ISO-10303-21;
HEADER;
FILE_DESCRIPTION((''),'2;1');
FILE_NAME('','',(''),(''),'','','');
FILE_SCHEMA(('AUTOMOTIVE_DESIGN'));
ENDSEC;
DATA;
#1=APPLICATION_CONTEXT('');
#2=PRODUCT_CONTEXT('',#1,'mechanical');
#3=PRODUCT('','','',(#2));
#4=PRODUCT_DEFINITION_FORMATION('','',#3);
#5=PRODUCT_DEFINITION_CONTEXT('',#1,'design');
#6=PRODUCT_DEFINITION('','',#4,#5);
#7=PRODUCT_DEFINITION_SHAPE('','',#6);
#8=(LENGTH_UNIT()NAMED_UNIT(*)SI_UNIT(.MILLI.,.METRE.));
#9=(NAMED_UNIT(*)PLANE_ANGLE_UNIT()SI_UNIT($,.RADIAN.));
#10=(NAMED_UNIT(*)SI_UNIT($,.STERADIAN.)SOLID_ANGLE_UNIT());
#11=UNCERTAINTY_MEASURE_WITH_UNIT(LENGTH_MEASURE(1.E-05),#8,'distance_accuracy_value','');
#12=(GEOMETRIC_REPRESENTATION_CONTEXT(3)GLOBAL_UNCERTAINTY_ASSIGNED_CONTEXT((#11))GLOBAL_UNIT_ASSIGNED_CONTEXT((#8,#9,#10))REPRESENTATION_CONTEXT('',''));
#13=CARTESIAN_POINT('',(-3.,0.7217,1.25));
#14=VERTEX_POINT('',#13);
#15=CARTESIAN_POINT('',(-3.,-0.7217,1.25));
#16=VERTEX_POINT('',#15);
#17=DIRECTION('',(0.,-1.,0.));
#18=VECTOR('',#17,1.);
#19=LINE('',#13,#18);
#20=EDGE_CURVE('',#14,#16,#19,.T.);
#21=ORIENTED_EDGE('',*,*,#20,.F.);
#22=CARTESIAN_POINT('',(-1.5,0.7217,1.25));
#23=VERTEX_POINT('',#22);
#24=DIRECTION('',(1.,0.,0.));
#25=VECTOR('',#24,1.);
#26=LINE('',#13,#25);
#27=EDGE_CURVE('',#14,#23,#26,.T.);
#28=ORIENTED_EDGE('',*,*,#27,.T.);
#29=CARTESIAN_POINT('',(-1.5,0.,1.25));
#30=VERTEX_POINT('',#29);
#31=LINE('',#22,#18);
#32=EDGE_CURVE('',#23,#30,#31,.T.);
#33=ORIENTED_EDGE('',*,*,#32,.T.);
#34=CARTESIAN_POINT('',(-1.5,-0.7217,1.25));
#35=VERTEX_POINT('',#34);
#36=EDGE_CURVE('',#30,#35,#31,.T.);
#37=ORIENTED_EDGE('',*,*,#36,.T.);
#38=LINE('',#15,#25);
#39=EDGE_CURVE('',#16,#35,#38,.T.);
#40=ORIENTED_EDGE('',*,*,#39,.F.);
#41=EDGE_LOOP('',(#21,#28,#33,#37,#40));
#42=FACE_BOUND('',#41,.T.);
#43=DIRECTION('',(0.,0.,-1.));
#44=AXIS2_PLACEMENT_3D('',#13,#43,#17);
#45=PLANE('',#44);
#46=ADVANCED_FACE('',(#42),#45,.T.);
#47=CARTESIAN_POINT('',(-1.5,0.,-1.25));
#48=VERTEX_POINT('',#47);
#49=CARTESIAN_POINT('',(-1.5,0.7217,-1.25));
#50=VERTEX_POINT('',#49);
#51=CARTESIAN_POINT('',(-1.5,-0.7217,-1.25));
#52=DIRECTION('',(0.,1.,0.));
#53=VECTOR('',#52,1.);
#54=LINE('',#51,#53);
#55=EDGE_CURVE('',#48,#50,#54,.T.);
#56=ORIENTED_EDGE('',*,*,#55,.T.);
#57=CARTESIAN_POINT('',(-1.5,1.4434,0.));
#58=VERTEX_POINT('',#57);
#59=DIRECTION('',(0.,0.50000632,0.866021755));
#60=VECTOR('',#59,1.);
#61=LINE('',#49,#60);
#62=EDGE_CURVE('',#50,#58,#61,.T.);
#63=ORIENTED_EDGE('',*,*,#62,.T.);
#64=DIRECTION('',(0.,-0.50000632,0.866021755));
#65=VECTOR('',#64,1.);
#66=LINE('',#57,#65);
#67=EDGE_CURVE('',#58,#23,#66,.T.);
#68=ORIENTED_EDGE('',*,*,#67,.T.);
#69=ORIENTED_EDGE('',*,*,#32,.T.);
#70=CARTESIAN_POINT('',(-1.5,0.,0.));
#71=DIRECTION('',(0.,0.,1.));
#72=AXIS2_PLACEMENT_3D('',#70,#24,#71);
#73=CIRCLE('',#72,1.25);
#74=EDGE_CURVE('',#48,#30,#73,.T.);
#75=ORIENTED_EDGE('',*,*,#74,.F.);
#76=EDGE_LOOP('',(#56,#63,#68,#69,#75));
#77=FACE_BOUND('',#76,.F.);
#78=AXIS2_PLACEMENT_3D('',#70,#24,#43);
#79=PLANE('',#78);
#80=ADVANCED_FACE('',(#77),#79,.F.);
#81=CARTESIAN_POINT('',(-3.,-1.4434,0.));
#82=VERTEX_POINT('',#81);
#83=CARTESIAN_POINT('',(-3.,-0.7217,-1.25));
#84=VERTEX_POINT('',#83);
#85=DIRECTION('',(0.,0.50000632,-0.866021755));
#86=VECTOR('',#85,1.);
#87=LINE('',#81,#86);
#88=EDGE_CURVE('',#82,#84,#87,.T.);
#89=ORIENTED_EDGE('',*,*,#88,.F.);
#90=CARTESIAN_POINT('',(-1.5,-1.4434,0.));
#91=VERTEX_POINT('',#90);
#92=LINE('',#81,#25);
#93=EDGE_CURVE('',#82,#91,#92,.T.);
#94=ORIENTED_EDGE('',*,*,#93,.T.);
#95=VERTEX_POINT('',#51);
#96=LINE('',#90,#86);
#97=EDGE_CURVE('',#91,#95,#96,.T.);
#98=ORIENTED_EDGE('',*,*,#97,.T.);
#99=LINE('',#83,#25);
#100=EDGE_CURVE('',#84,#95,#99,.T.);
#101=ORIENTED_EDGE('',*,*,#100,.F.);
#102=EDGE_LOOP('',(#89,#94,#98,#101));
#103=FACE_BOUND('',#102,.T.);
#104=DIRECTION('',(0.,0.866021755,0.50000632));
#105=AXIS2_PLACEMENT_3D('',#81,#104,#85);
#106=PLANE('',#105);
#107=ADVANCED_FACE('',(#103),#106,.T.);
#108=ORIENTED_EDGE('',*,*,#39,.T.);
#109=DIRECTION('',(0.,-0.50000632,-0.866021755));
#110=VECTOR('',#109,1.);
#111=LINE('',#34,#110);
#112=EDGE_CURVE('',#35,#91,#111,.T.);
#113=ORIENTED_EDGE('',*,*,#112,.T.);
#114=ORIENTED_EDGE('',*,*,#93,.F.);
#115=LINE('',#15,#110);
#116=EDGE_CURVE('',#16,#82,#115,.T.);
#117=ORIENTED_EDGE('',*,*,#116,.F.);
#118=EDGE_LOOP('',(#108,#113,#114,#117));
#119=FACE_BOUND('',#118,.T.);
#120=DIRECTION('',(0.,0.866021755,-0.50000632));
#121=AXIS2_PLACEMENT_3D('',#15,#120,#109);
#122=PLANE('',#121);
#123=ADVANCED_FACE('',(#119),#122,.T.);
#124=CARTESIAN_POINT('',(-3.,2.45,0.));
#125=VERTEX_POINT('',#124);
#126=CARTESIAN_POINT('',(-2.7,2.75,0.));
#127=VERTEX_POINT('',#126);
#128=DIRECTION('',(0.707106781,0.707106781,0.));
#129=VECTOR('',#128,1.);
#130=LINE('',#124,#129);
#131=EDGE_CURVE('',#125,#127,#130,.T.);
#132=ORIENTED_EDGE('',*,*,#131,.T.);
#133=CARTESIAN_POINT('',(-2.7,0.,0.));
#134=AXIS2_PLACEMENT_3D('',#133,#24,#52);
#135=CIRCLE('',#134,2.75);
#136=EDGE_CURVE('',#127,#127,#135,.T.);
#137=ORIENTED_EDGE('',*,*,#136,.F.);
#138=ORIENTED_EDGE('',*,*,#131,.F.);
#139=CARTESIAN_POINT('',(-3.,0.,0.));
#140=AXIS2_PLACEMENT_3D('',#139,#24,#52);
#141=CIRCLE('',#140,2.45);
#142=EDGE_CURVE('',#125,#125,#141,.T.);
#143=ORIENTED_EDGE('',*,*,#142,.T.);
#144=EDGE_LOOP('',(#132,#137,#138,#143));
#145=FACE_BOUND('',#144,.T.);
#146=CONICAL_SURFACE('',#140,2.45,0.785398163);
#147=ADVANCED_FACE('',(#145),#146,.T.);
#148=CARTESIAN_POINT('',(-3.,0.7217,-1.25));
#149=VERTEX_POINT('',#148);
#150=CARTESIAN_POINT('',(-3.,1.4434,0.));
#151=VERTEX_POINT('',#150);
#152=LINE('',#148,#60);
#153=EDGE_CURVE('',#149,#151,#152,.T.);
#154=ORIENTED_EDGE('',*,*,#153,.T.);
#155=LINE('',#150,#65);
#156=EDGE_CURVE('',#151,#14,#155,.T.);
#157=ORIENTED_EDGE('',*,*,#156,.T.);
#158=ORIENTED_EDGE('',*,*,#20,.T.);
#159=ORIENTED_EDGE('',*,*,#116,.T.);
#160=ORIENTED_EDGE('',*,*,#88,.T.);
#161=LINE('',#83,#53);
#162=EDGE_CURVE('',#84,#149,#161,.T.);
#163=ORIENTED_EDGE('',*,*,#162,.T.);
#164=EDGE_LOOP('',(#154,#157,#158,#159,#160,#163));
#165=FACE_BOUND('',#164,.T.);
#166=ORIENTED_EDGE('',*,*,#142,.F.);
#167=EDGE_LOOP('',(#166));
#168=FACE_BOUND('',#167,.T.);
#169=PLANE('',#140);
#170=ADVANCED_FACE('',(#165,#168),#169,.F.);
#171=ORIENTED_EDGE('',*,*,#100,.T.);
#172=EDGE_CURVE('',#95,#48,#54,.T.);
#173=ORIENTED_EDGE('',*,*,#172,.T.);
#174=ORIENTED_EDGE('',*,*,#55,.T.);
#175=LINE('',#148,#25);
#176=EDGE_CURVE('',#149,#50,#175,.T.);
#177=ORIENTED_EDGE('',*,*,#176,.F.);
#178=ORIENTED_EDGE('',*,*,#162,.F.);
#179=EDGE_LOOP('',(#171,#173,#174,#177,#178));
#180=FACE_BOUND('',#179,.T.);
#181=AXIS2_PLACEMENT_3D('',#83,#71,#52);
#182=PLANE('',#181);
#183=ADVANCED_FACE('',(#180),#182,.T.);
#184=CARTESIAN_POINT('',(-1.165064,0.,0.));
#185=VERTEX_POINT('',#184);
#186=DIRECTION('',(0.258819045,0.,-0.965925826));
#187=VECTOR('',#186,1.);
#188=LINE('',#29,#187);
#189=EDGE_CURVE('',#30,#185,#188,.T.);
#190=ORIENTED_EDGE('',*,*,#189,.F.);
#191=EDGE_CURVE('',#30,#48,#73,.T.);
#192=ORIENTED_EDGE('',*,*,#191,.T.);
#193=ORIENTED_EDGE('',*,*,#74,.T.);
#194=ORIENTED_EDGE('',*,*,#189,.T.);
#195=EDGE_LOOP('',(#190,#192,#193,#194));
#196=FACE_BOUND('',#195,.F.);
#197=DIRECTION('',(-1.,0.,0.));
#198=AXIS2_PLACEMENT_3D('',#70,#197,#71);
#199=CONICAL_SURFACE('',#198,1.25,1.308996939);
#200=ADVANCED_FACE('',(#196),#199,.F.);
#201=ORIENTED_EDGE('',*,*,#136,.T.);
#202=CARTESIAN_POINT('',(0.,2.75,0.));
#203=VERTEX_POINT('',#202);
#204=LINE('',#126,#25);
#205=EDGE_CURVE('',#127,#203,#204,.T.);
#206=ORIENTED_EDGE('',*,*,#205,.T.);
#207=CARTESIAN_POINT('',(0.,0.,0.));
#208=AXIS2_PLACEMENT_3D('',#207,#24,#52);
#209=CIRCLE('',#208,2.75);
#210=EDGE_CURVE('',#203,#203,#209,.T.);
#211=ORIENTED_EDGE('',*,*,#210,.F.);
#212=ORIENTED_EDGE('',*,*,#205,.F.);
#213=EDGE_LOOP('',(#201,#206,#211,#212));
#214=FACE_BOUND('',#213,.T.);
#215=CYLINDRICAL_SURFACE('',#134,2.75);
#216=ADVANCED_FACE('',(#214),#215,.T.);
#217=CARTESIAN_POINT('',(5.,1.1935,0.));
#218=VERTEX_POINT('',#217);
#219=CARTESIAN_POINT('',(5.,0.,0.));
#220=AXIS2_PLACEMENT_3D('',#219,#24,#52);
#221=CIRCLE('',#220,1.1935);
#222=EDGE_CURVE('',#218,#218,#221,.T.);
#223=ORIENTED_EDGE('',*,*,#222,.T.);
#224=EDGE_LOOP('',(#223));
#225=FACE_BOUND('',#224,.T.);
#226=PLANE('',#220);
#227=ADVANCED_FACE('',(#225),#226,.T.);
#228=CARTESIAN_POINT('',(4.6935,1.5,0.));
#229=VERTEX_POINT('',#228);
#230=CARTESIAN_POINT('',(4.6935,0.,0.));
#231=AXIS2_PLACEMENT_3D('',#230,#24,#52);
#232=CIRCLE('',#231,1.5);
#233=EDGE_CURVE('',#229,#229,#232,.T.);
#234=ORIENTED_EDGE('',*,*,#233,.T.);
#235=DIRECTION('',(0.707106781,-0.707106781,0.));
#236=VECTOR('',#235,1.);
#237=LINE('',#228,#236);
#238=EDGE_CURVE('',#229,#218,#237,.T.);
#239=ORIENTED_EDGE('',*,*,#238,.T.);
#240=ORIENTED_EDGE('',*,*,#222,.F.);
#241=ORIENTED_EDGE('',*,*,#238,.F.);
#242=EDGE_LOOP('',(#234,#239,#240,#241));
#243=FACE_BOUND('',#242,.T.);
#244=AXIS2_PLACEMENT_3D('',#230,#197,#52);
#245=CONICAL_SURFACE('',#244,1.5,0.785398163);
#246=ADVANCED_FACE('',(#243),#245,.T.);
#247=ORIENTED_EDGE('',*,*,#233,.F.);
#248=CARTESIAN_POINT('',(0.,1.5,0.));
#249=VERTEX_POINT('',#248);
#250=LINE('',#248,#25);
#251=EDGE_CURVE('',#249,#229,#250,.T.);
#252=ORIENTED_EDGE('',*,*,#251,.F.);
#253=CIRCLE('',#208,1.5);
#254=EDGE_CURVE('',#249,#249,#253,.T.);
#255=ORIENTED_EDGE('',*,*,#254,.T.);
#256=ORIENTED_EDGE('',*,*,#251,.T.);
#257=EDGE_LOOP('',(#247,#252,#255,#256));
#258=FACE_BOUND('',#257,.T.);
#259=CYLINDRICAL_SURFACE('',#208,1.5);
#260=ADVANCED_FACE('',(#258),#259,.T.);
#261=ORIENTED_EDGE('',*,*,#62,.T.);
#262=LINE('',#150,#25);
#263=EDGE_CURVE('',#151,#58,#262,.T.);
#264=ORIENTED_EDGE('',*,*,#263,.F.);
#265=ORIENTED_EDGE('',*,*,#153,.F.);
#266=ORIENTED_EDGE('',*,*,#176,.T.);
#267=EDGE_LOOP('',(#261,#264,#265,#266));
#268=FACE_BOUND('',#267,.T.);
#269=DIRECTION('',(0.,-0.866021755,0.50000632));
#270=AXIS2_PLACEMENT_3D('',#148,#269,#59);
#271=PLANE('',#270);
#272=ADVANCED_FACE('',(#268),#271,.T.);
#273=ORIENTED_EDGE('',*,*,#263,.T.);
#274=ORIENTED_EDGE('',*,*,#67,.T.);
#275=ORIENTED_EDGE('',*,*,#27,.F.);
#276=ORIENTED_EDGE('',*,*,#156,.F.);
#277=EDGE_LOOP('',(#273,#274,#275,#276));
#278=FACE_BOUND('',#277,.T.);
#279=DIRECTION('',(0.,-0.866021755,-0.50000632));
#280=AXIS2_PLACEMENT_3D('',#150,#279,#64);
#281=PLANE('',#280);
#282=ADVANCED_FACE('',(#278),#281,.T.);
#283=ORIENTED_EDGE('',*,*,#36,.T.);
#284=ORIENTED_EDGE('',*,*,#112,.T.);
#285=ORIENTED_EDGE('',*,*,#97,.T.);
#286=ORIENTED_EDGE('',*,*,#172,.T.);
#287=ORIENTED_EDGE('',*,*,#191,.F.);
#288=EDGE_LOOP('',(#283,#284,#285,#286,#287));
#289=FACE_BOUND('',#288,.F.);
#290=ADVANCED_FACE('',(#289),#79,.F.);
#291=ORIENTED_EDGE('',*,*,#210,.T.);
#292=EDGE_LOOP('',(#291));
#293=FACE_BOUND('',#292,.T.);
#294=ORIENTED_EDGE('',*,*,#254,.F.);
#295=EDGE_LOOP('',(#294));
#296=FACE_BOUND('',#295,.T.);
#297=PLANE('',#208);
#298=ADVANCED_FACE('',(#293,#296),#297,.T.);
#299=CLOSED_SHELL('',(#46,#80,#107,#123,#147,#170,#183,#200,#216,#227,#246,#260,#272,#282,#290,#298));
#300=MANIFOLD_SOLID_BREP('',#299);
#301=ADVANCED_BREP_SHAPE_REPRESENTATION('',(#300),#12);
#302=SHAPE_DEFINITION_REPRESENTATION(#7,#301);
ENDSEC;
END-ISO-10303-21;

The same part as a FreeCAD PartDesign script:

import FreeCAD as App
import Part
import Sketcher
from FreeCAD import Vector
Q = App.Units.Quantity


def add_polygon(sketch, points):
    """Adds a closed chain of lines whose ends are joined by coincident constraints."""
    first, n = sketch.GeometryCount, len(points)
    for a, b in zip(points, points[1:] + points[:1]):
        sketch.addGeometry(Part.LineSegment(App.Vector(*a, 0), App.Vector(*b, 0)), False)
    for i in range(n):
        sketch.addConstraint(Sketcher.Constraint("Coincident", first + i, 2, first + (i + 1) % n, 1))

doc = App.newDocument("Part")
params = doc.addObject("Spreadsheet::Sheet", "Params")
for row, (alias, value) in enumerate([
    ("sketch1_width", "8 mm"),
    ("sketch1_width2", "2.7 mm"),
    ("sketch1_height", "1.25 mm"),
    ("sketch1_height2", "2.45 mm"),
    ("revolution_angle", "360 deg"),
    ("sketch2_diameter", "2.5 mm"),
    ("hole_diameter", "2.5 mm"),
    ("hole_depth", "1.5 mm"),
    ("pocket1_length", "1.5 mm"),
], start=1):
    params.set(f"A{row}", alias)
    params.set(f"B{row}", "=" + value)
    params.setAlias(f"B{row}", alias)

body = doc.addObject("PartDesign::Body", "Body")

# Sketch on XY plane
sketch1 = body.newObject("Sketcher::SketchObject", "Sketch")
sketch1.AttachmentSupport = (doc.getObject("XY_Plane"), [""])
sketch1.MapMode = "FlatFace"
add_polygon(sketch1, [(-3, 0), (5, 0), (5, 1.1935), (4.6935, 1.5), (0, 1.5), (0, 2.75), (-2.7, 2.75), (-3, 2.45)])  # lines 0-7
sketch1.addConstraint([
    Sketcher.Constraint("Horizontal", 0),
    Sketcher.Constraint("Vertical", 1),
    Sketcher.Constraint("Horizontal", 3),
    Sketcher.Constraint("Vertical", 4),
    Sketcher.Constraint("Horizontal", 5),
    Sketcher.Constraint("Vertical", 7),
    Sketcher.Constraint("PointOnObject", 0, 2, -1),
    Sketcher.Constraint("PointOnObject", 3, 2, -2),
    Sketcher.Constraint("Perpendicular", 2, 6),
    Sketcher.Constraint("DistanceX", 0, 1, 0, 2, Q("8 mm")),
    Sketcher.Constraint("Angle", 2, Q("135 deg")),
    Sketcher.Constraint("DistanceX", 5, 2, 5, 1, Q("2.7 mm")),
    Sketcher.Constraint("DistanceX", -1, 1, 0, 2, Q("5 mm")),
    Sketcher.Constraint("DistanceY", 4, 1, 4, 2, Q("1.25 mm")),
    Sketcher.Constraint("DistanceY", 7, 2, 7, 1, Q("2.45 mm")),
    Sketcher.Constraint("DistanceX", 3, 2, 3, 1, Q("4.6935 mm")),
])
sketch1.setExpression("Constraints[17]", "Params.sketch1_width")
sketch1.setExpression("Constraints[19]", "Params.sketch1_width2")
sketch1.setExpression("Constraints[21]", "Params.sketch1_height")
sketch1.setExpression("Constraints[22]", "Params.sketch1_height2")
revolution = body.newObject("PartDesign::Revolution", "Revolution")
revolution.Profile = sketch1
revolution.ReferenceAxis = (sketch1, ["H_Axis"])
revolution.setExpression("Angle", "Params.revolution_angle")

# Sketch on YZ plane
sketch2 = body.newObject("Sketcher::SketchObject", "Sketch001")
sketch2.AttachmentSupport = (doc.getObject("YZ_Plane"), [""])
sketch2.MapMode = "FlatFace"
sketch2.AttachmentOffset = App.Placement(Vector(0, 0, -3), App.Rotation())
sketch2.addGeometry(Part.Circle(Vector(0, 0, 0), Vector(0, 0, 1), 1.25), False)
sketch2.addConstraint([
    Sketcher.Constraint("Coincident", 0, 3, -1, 1),
    Sketcher.Constraint("Diameter", 0, Q("2.5 mm")),
])
sketch2.setExpression("Constraints[1]", "Params.sketch2_diameter")
doc.recompute()
hole = body.newObject("PartDesign::Hole", "Hole")
hole.Profile = sketch2
hole.ThreadType = "None"
hole.setExpression("Diameter", "Params.hole_diameter")
hole.DepthType = "Dimension"
hole.setExpression("Depth", "Params.hole_depth")
hole.DrillPoint = "Angled"
hole.DrillPointAngle = 150
hole.Reversed = True

# Sketch on YZ plane
sketch3 = body.newObject("Sketcher::SketchObject", "Sketch002")
sketch3.AttachmentSupport = (doc.getObject("YZ_Plane"), [""])
sketch3.MapMode = "FlatFace"
sketch3.AttachmentOffset = App.Placement(Vector(0, 0, -3), App.Rotation())
add_polygon(sketch3, [(0.7217, 1.25), (-0.7217, 1.25), (-1.4434, 0), (-0.7217, -1.25), (0.7217, -1.25), (1.4434, 0)])  # lines 0-5
sketch3.addConstraint([
    Sketcher.Constraint("Horizontal", 0),
    Sketcher.Constraint("Horizontal", 3),
    Sketcher.Constraint("Symmetric", 0, 2, 3, 2, -1, 1),
    Sketcher.Constraint("Symmetric", 1, 2, 4, 2, -1, 1),
    Sketcher.Constraint("PointOnObject", 1, 2, -1),
    Sketcher.Constraint("Parallel", 2, 5),
    Sketcher.Constraint("Vertical", 0, 2, 2, 2),
    Sketcher.Constraint("Angle", 1, Q("-120.0004 deg")),
    Sketcher.Constraint("DistanceY", 2, 2, 0, 2, Q("2.5 mm")),
    Sketcher.Constraint("DistanceX", 0, 2, 0, 1, Q("1.4434 mm")),
])
pocket1 = body.newObject("PartDesign::Pocket", "Pocket")
pocket1.Profile = sketch3
pocket1.setExpression("Length", "Params.pocket1_length")
pocket1.Reversed = True

doc.recompute()
